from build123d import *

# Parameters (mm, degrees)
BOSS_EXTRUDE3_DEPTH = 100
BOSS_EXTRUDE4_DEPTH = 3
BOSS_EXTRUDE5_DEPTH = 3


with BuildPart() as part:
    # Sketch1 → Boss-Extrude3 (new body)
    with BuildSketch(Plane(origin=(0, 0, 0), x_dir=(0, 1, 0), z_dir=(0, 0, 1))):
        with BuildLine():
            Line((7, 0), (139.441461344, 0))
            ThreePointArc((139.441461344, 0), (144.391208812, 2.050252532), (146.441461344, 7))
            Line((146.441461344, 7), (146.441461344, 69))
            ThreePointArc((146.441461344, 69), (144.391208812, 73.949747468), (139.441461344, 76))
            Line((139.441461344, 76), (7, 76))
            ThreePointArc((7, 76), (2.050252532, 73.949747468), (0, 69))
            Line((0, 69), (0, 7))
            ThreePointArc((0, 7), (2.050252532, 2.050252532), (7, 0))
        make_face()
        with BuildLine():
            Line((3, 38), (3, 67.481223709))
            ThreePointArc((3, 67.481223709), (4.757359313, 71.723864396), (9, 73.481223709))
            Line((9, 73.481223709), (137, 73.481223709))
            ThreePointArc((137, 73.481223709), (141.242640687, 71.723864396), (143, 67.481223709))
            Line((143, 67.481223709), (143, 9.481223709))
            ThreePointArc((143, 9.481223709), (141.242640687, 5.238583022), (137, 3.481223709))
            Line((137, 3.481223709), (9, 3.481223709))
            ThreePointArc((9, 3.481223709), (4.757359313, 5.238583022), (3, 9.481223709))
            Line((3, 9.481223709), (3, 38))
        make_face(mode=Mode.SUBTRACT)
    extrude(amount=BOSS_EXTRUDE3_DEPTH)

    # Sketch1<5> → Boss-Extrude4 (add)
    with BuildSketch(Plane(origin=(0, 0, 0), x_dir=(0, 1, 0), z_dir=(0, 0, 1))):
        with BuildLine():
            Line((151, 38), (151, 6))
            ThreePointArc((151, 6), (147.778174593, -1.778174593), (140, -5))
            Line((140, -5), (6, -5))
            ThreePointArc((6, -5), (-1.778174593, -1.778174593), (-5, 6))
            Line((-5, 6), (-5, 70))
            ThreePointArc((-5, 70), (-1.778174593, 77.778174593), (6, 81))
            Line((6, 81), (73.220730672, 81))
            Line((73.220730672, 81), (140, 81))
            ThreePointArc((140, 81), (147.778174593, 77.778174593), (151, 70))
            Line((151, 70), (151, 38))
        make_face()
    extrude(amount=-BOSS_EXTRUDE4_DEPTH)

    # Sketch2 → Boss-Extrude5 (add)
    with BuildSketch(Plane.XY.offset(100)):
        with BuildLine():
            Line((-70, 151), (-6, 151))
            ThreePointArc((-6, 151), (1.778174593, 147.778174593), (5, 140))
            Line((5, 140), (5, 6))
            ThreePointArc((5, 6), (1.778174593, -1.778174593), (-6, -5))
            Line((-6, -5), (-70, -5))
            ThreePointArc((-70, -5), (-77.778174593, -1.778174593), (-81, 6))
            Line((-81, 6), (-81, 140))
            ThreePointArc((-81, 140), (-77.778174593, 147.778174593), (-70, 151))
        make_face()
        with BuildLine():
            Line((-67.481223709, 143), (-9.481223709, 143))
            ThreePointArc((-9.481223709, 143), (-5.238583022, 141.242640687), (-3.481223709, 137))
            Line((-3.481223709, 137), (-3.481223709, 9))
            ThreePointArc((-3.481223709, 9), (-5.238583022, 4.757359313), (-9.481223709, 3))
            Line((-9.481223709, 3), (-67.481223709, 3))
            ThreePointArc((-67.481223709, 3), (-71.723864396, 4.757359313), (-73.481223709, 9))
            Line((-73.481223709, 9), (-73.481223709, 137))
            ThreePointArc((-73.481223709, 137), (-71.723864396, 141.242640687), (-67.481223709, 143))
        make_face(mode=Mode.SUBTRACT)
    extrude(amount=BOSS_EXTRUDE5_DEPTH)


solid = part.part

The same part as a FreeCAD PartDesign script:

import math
import FreeCAD as App
import Part
import Sketcher
from FreeCAD import Vector
Q = App.Units.Quantity

doc = App.newDocument("Part")
body = doc.addObject("PartDesign::Body", "Body")

# Sketch on XY plane
sketch1 = body.newObject("Sketcher::SketchObject", "Sketch")
sketch1.AttachmentSupport = (doc.getObject("XY_Plane"), [""])
sketch1.MapMode = "FlatFace"
sketch1.addGeometry([
    Part.LineSegment(Vector(0, 7, 0), Vector(0, 139, 0)),  # 0
    Part.ArcOfCircle(Part.Circle(Vector(-7, 139, 0), Vector(0, 0, 1), 7), math.radians(0), math.radians(90)),  # 1
    Part.LineSegment(Vector(-7, 146, 0), Vector(-69, 146, 0)),  # 2
    Part.ArcOfCircle(Part.Circle(Vector(-69, 139, 0), Vector(0, 0, 1), 7), math.radians(90), math.radians(180)),  # 3
    Part.LineSegment(Vector(-76, 139, 0), Vector(-76, 7, 0)),  # 4
    Part.ArcOfCircle(Part.Circle(Vector(-69, 7, 0), Vector(0, 0, 1), 7), math.radians(-180), math.radians(-90)),  # 5
    Part.LineSegment(Vector(-69, 0, 0), Vector(-7, 0, 0)),  # 6
    Part.ArcOfCircle(Part.Circle(Vector(-7, 7, 0), Vector(0, 0, 1), 7), math.radians(-90), math.radians(0)),  # 7
    Part.LineSegment(Vector(-9, 3, 0), Vector(-67, 3, 0)),  # 8
    Part.ArcOfCircle(Part.Circle(Vector(-67, 9, 0), Vector(0, 0, 1), 6), math.radians(180), math.radians(270)),  # 9
    Part.LineSegment(Vector(-73, 9, 0), Vector(-73, 137, 0)),  # 10
    Part.ArcOfCircle(Part.Circle(Vector(-67, 137, 0), Vector(0, 0, 1), 6), math.radians(90), math.radians(180)),  # 11
    Part.LineSegment(Vector(-67, 143, 0), Vector(-9, 143, 0)),  # 12
    Part.ArcOfCircle(Part.Circle(Vector(-9, 137, 0), Vector(0, 0, 1), 6), math.radians(0), math.radians(90)),  # 13
    Part.LineSegment(Vector(-3, 137, 0), Vector(-3, 9, 0)),  # 14
    Part.ArcOfCircle(Part.Circle(Vector(-9, 9, 0), Vector(0, 0, 1), 6), math.radians(-90), math.radians(0)),  # 15
], False)
sketch1.addConstraint([
    Sketcher.Constraint("Tangent", 0, 2, 1, 1),
    Sketcher.Constraint("Tangent", 1, 2, 2, 1),
    Sketcher.Constraint("Tangent", 2, 2, 3, 1),
    Sketcher.Constraint("Tangent", 3, 2, 4, 1),
    Sketcher.Constraint("Tangent", 4, 2, 5, 1),
    Sketcher.Constraint("Tangent", 5, 2, 6, 1),
    Sketcher.Constraint("Tangent", 6, 2, 7, 1),
    Sketcher.Constraint("Tangent", 7, 2, 0, 1),
    Sketcher.Constraint("Tangent", 8, 2, 9, 2),
    Sketcher.Constraint("Tangent", 9, 1, 10, 1),
    Sketcher.Constraint("Tangent", 10, 2, 11, 2),
    Sketcher.Constraint("Tangent", 11, 1, 12, 1),
    Sketcher.Constraint("Tangent", 12, 2, 13, 2),
    Sketcher.Constraint("Tangent", 13, 1, 14, 1),
    Sketcher.Constraint("Tangent", 14, 2, 15, 2),
    Sketcher.Constraint("Tangent", 15, 1, 8, 1),
    Sketcher.Constraint("Vertical", 0),
    Sketcher.Constraint("Horizontal", 2),
    Sketcher.Constraint("Vertical", 4),
    Sketcher.Constraint("Horizontal", 6),
    Sketcher.Constraint("Horizontal", 8),
    Sketcher.Constraint("Vertical", 10),
    Sketcher.Constraint("Horizontal", 12),
    Sketcher.Constraint("Vertical", 14),
    Sketcher.Constraint("Equal", 1, 3),
    Sketcher.Constraint("Equal", 3, 5),
    Sketcher.Constraint("Equal", 5, 7),
    Sketcher.Constraint("Equal", 9, 11),
    Sketcher.Constraint("Equal", 11, 13),
    Sketcher.Constraint("Equal", 13, 15),
    Sketcher.Constraint("PointOnObject", 0, 2, -2),
    Sketcher.Constraint("PointOnObject", 5, 2, -1),
    Sketcher.Constraint("Radius", 1, Q("7 mm")),
    Sketcher.Constraint("Radius", 9, Q("6 mm")),
    Sketcher.Constraint("DistanceX", 2, 2, 2, 1, Q("62 mm")),
    Sketcher.Constraint("DistanceX", 8, 2, 8, 1, Q("58 mm")),
    Sketcher.Constraint("DistanceY", 10, 1, 10, 2, Q("128 mm")),
    Sketcher.Constraint("DistanceY", -1, 1, 9, 3, Q("9 mm")),
    Sketcher.Constraint("DistanceY", 0, 1, 0, 2, Q("132.441461 mm")),
    Sketcher.Constraint("DistanceX", 9, 3, -1, 1, Q("67.481224 mm")),
])
pad1 = body.newObject("PartDesign::Pad", "Pad")
pad1.Profile = sketch1
pad1.Length = 100

# Sketch on XY plane
sketch2 = body.newObject("Sketcher::SketchObject", "Sketch001")
sketch2.AttachmentSupport = (doc.getObject("XY_Plane"), [""])
sketch2.MapMode = "FlatFace"
sketch2.addGeometry([
    Part.ArcOfCircle(Part.Circle(Vector(-6, 140, 0), Vector(0, 0, 1), 11), math.radians(0), math.radians(90)),  # 0
    Part.LineSegment(Vector(-6, 151, 0), Vector(-70, 151, 0)),  # 1
    Part.ArcOfCircle(Part.Circle(Vector(-70, 140, 0), Vector(0, 0, 1), 11), math.radians(90), math.radians(180)),  # 2
    Part.LineSegment(Vector(-81, 140, 0), Vector(-81, 6, 0)),  # 3
    Part.ArcOfCircle(Part.Circle(Vector(-70, 6, 0), Vector(0, 0, 1), 11), math.radians(180), math.radians(270)),  # 4
    Part.LineSegment(Vector(-70, -5, 0), Vector(-6, -5, 0)),  # 5
    Part.ArcOfCircle(Part.Circle(Vector(-6, 6, 0), Vector(0, 0, 1), 11), math.radians(-90), math.radians(0)),  # 6
    Part.LineSegment(Vector(5, 6, 0), Vector(5, 140, 0)),  # 7
], False)
sketch2.addConstraint([
    Sketcher.Constraint("Tangent", 0, 2, 1, 1),
    Sketcher.Constraint("Tangent", 1, 2, 2, 1),
    Sketcher.Constraint("Tangent", 2, 2, 3, 1),
    Sketcher.Constraint("Tangent", 3, 2, 4, 1),
    Sketcher.Constraint("Tangent", 4, 2, 5, 1),
    Sketcher.Constraint("Tangent", 5, 2, 6, 1),
    Sketcher.Constraint("Tangent", 6, 2, 7, 1),
    Sketcher.Constraint("Tangent", 7, 2, 0, 1),
    Sketcher.Constraint("Horizontal", 1),
    Sketcher.Constraint("Vertical", 3),
    Sketcher.Constraint("Horizontal", 5),
    Sketcher.Constraint("Vertical", 7),
    Sketcher.Constraint("Equal", 0, 2),
    Sketcher.Constraint("Equal", 2, 4),
    Sketcher.Constraint("Equal", 4, 6),
    Sketcher.Constraint("Radius", 0, Q("11 mm")),
    Sketcher.Constraint("DistanceX", 1, 2, 1, 1, Q("64 mm")),
    Sketcher.Constraint("DistanceY", 3, 2, 3, 1, Q("134 mm")),
    Sketcher.Constraint("DistanceX", 0, 3, -1, 1, Q("6 mm")),
    Sketcher.Constraint("DistanceY", -1, 1, 0, 3, Q("140 mm")),
])
pad2 = body.newObject("PartDesign::Pad", "Pad001")
pad2.Profile = sketch2
pad2.Length = 3
pad2.Reversed = True

# Sketch on XY plane
sketch3 = body.newObject("Sketcher::SketchObject", "Sketch002")
sketch3.AttachmentSupport = (doc.getObject("XY_Plane"), [""])
sketch3.MapMode = "FlatFace"
sketch3.AttachmentOffset = App.Placement(Vector(0, 0, 100), App.Rotation())
sketch3.addGeometry([
    Part.LineSegment(Vector(-6, 151, 0), Vector(-70, 151, 0)),  # 0
    Part.ArcOfCircle(Part.Circle(Vector(-70, 140, 0), Vector(0, 0, 1), 11), math.radians(90), math.radians(180)),  # 1
    Part.LineSegment(Vector(-81, 140, 0), Vector(-81, 6, 0)),  # 2
    Part.ArcOfCircle(Part.Circle(Vector(-70, 6, 0), Vector(0, 0, 1), 11), math.radians(180), math.radians(270)),  # 3
    Part.LineSegment(Vector(-70, -5, 0), Vector(-6, -5, 0)),  # 4
    Part.ArcOfCircle(Part.Circle(Vector(-6, 6, 0), Vector(0, 0, 1), 11), math.radians(-90), math.radians(0)),  # 5
    Part.LineSegment(Vector(5, 6, 0), Vector(5, 140, 0)),  # 6
    Part.ArcOfCircle(Part.Circle(Vector(-6, 140, 0), Vector(0, 0, 1), 11), math.radians(0), math.radians(90)),  # 7
    Part.LineSegment(Vector(-67, 143, 0), Vector(-9, 143, 0)),  # 8
    Part.ArcOfCircle(Part.Circle(Vector(-9, 137, 0), Vector(0, 0, 1), 6), math.radians(0), math.radians(90)),  # 9
    Part.LineSegment(Vector(-3, 137, 0), Vector(-3, 9, 0)),  # 10
    Part.ArcOfCircle(Part.Circle(Vector(-9, 9, 0), Vector(0, 0, 1), 6), math.radians(-90), math.radians(0)),  # 11
    Part.LineSegment(Vector(-9, 3, 0), Vector(-67, 3, 0)),  # 12
    Part.ArcOfCircle(Part.Circle(Vector(-67, 9, 0), Vector(0, 0, 1), 6), math.radians(180), math.radians(270)),  # 13
    Part.LineSegment(Vector(-73, 9, 0), Vector(-73, 137, 0)),  # 14
    Part.ArcOfCircle(Part.Circle(Vector(-67, 137, 0), Vector(0, 0, 1), 6), math.radians(90), math.radians(180)),  # 15
], False)
sketch3.addConstraint([
    Sketcher.Constraint("Tangent", 0, 2, 1, 1),
    Sketcher.Constraint("Tangent", 1, 2, 2, 1),
    Sketcher.Constraint("Tangent", 2, 2, 3, 1),
    Sketcher.Constraint("Tangent", 3, 2, 4, 1),
    Sketcher.Constraint("Tangent", 4, 2, 5, 1),
    Sketcher.Constraint("Tangent", 5, 2, 6, 1),
    Sketcher.Constraint("Tangent", 6, 2, 7, 1),
    Sketcher.Constraint("Tangent", 7, 2, 0, 1),
    Sketcher.Constraint("Tangent", 8, 2, 9, 2),
    Sketcher.Constraint("Tangent", 9, 1, 10, 1),
    Sketcher.Constraint("Tangent", 10, 2, 11, 2),
    Sketcher.Constraint("Tangent", 11, 1, 12, 1),
    Sketcher.Constraint("Tangent", 12, 2, 13, 2),
    Sketcher.Constraint("Tangent", 13, 1, 14, 1),
    Sketcher.Constraint("Tangent", 14, 2, 15, 2),
    Sketcher.Constraint("Tangent", 15, 1, 8, 1),
    Sketcher.Constraint("Horizontal", 0),
    Sketcher.Constraint("Vertical", 2),
    Sketcher.Constraint("Horizontal", 4),
    Sketcher.Constraint("Vertical", 6),
    Sketcher.Constraint("Horizontal", 8),
    Sketcher.Constraint("Vertical", 10),
    Sketcher.Constraint("Horizontal", 12),
    Sketcher.Constraint("Vertical", 14),
    Sketcher.Constraint("Equal", 1, 3),
    Sketcher.Constraint("Equal", 3, 5),
    Sketcher.Constraint("Equal", 5, 7),
    Sketcher.Constraint("Equal", 9, 11),
    Sketcher.Constraint("Equal", 11, 13),
    Sketcher.Constraint("Equal", 13, 15),
    Sketcher.Constraint("Radius", 1, Q("11 mm")),
    Sketcher.Constraint("Radius", 9, Q("6 mm")),
    Sketcher.Constraint("DistanceX", 0, 2, 0, 1, Q("64 mm")),
    Sketcher.Constraint("DistanceX", 8, 1, 8, 2, Q("58 mm")),
    Sketcher.Constraint("DistanceY", 2, 2, 2, 1, Q("134 mm")),
    Sketcher.Constraint("DistanceY", 10, 2, 10, 1, Q("128 mm")),
    Sketcher.Constraint("DistanceX", 1, 3, -1, 1, Q("70 mm")),
    Sketcher.Constraint("DistanceY", -1, 1, 1, 3, Q("140 mm")),
    Sketcher.Constraint("DistanceY", -1, 1, 9, 3, Q("137 mm")),
    Sketcher.Constraint("DistanceX", 9, 3, -1, 1, Q("9.481224 mm")),
])
pad3 = body.newObject("PartDesign::Pad", "Pad002")
pad3.Profile = sketch3
pad3.Length = 3

doc.recompute()
